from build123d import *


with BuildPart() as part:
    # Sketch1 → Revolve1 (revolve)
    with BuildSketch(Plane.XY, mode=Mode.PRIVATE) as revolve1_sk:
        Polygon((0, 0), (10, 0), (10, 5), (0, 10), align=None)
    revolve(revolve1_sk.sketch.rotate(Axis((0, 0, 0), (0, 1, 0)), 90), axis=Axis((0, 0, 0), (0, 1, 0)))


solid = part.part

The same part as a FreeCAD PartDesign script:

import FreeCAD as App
import Part
import Sketcher
Q = App.Units.Quantity


def add_polygon(sketch, points):
    """Adds a closed chain of lines whose ends are joined by coincident constraints."""
    first, n = sketch.GeometryCount, len(points)
    for a, b in zip(points, points[1:] + points[:1]):
        sketch.addGeometry(Part.LineSegment(App.Vector(*a, 0), App.Vector(*b, 0)), False)
    for i in range(n):
        sketch.addConstraint(Sketcher.Constraint("Coincident", first + i, 2, first + (i + 1) % n, 1))

doc = App.newDocument("Part")
body = doc.addObject("PartDesign::Body", "Body")

sketch1 = body.newObject("Sketcher::SketchObject", "Sketch")
sketch1.AttachmentSupport = (doc.getObject("XY_Plane"), [""])
sketch1.MapMode = "FlatFace"
add_polygon(sketch1, [(0, 0), (10, 0), (10, 5), (0, 10)])
sketch1.addConstraint([
    Sketcher.Constraint("Horizontal", 0),
    Sketcher.Constraint("Vertical", 1),
    Sketcher.Constraint("Vertical", 3),
    Sketcher.Constraint("Coincident", 3, 2, -1, 1),
    Sketcher.Constraint("Equal", 0, 3),
    Sketcher.Constraint("DistanceX", 0, 1, 0, 2, Q("10 mm")),
    Sketcher.Constraint("DistanceY", 1, 1, 1, 2, Q("5 mm")),
])
revolution = body.newObject("PartDesign::Revolution", "Revolution")
revolution.Profile = sketch1
revolution.ReferenceAxis = (sketch1, ["V_Axis"])
revolution.Angle = 360

doc.recompute()
